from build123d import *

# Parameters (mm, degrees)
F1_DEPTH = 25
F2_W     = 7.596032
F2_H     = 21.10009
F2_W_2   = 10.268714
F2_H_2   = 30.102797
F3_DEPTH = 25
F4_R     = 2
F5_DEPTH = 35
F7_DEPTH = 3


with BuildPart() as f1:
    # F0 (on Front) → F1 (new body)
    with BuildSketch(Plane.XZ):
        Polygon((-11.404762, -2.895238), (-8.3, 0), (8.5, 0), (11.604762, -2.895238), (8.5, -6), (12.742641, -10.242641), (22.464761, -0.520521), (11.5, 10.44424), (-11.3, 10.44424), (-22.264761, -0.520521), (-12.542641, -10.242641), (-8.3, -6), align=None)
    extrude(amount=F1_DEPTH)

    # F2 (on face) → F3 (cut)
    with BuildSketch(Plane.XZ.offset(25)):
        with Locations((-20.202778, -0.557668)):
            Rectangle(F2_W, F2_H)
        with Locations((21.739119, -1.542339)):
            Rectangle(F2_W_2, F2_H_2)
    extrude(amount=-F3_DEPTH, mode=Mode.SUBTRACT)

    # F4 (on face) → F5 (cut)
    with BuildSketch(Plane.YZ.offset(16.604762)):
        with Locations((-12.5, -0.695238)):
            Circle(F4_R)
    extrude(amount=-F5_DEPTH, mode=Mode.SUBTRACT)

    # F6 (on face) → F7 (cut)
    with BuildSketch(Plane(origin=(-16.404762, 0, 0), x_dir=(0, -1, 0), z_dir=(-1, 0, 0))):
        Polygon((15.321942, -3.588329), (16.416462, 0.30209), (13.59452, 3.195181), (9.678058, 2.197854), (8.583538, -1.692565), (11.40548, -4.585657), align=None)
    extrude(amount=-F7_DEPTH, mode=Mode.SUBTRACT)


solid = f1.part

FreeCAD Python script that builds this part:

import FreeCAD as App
import Part
import Sketcher
Q = App.Units.Quantity


def add_polygon(sketch, points):
    """Adds a closed chain of lines whose ends are joined by coincident constraints."""
    first, n = sketch.GeometryCount, len(points)
    for a, b in zip(points, points[1:] + points[:1]):
        sketch.addGeometry(Part.LineSegment(App.Vector(*a, 0), App.Vector(*b, 0)), False)
    for i in range(n):
        sketch.addConstraint(Sketcher.Constraint("Coincident", first + i, 2, first + (i + 1) % n, 1))

doc = App.newDocument("Part")
body = doc.addObject("PartDesign::Body", "Body")

# Sketch on XZ plane
sketch1 = body.newObject("Sketcher::SketchObject", "Sketch")
sketch1.AttachmentSupport = (doc.getObject("XZ_Plane"), [""])
sketch1.MapMode = "FlatFace"
add_polygon(sketch1, [(-11.4, -2.9), (-8.3, 0), (8.5, 0), (11.6, -2.9), (8.5, -6), (12.7, -10.2), (22.5, -0.5), (11.5, 10.4), (-11.3, 10.4), (-22.3, -0.5), (-12.5, -10.2), (-8.3, -6)])  # lines 0-11
sketch1.addConstraint([
    Sketcher.Constraint("Horizontal", 1),
    Sketcher.Constraint("Horizontal", 7),
    Sketcher.Constraint("PointOnObject", 0, 2, -1),
    Sketcher.Constraint("Perpendicular", 3, 4),
    Sketcher.Constraint("Perpendicular", 4, 5),
    Sketcher.Constraint("Perpendicular", 5, 6),
    Sketcher.Constraint("Perpendicular", 6, 8),
    Sketcher.Constraint("Perpendicular", 8, 9),
    Sketcher.Constraint("Perpendicular", 9, 10),
    Sketcher.Constraint("Perpendicular", 10, 11),
    Sketcher.Constraint("Horizontal", 5, 2, 8, 2),
    Sketcher.Constraint("Horizontal", 4, 2, 9, 2),
    Sketcher.Constraint("Horizontal", 3, 2, 10, 2),
    Sketcher.Constraint("Horizontal", 2, 2, 11, 2),
    Sketcher.Constraint("Vertical", 1, 2, 3, 2),
    Sketcher.Constraint("Vertical", 0, 2, 10, 2),
    Sketcher.Constraint("Equal", 0, 2),
    Sketcher.Constraint("Angle", 0, Q("43.000006 deg")),
    Sketcher.Constraint("Distance", 4, Q("6 mm")),
    Sketcher.Constraint("DistanceX", 1, 1, 1, 2, Q("16.8 mm")),
    Sketcher.Constraint("DistanceX", 7, 2, 7, 1, Q("22.8 mm")),
    Sketcher.Constraint("DistanceY", 3, 2, -1, 1, Q("6 mm")),
    Sketcher.Constraint("DistanceX", 0, 2, -1, 1, Q("8.3 mm")),
    Sketcher.Constraint("DistanceX", 2, 2, 5, 2, Q("10.859999 mm")),
])
pad1 = body.newObject("PartDesign::Pad", "Pad")
pad1.Profile = sketch1
pad1.Length = 25

# Sketch on XZ plane
sketch2 = body.newObject("Sketcher::SketchObject", "Sketch001")
sketch2.AttachmentSupport = (doc.getObject("XZ_Plane"), [""])
sketch2.MapMode = "FlatFace"
sketch2.AttachmentOffset = App.Placement(App.Vector(0, 0, 25), App.Rotation())
add_polygon(sketch2, [(-24, 10), (-24, -11), (-16, -11), (-16, 10)])  # lines 0-3
add_polygon(sketch2, [(17, 14), (17, -17), (27, -17), (27, 14)])  # lines 4-7
sketch2.addConstraint([
    Sketcher.Constraint("Vertical", 0),
    Sketcher.Constraint("Horizontal", 1),
    Sketcher.Constraint("Vertical", 2),
    Sketcher.Constraint("Horizontal", 3),
    Sketcher.Constraint("Vertical", 4),
    Sketcher.Constraint("Horizontal", 5),
    Sketcher.Constraint("Vertical", 6),
    Sketcher.Constraint("Horizontal", 7),
    Sketcher.Constraint("DistanceX", 1, 1, 1, 2, Q("7.596032 mm")),
    Sketcher.Constraint("DistanceY", 0, 2, 0, 1, Q("21.10009 mm")),
    Sketcher.Constraint("DistanceX", 5, 1, 5, 2, Q("10.268714 mm")),
    Sketcher.Constraint("DistanceY", 4, 2, 4, 1, Q("30.102797 mm")),
    Sketcher.Constraint("DistanceY", -1, 1, 6, 2, Q("13.509059 mm")),
    Sketcher.Constraint("DistanceX", 1, 2, 5, 2, Q("43.278238 mm")),
    Sketcher.Constraint("DistanceX", 0, 2, -1, 1, Q("24.000794 mm")),
    Sketcher.Constraint("DistanceY", 0, 2, -1, 1, Q("11.107713 mm")),
])
pocket1 = body.newObject("PartDesign::Pocket", "Pocket")
pocket1.Profile = sketch2
pocket1.Length = 25

# Sketch on YZ plane
sketch3 = body.newObject("Sketcher::SketchObject", "Sketch002")
sketch3.AttachmentSupport = (doc.getObject("YZ_Plane"), [""])
sketch3.MapMode = "FlatFace"
sketch3.AttachmentOffset = App.Placement(App.Vector(0, 0, 16.604762), App.Rotation())
sketch3.addGeometry(Part.Circle(App.Vector(-12.5, -0.7, 0), App.Vector(0, 0, 1), 2), False)
sketch3.addConstraint([
    Sketcher.Constraint("Diameter", 0, Q("4 mm")),
    Sketcher.Constraint("DistanceX", 0, 3, -1, 1, Q("12.5 mm")),
    Sketcher.Constraint("DistanceY", 0, 3, -1, 1, Q("0.695238 mm")),
])
pocket2 = body.newObject("PartDesign::Pocket", "Pocket001")
pocket2.Profile = sketch3
pocket2.Length = 35

# Sketch on YZ plane
sketch4 = body.newObject("Sketcher::SketchObject", "Sketch003")
sketch4.AttachmentSupport = (doc.getObject("YZ_Plane"), [""])
sketch4.MapMode = "FlatFace"
sketch4.AttachmentOffset = App.Placement(App.Vector(0, 0, -16.404762), App.Rotation())
add_polygon(sketch4, [(-15.3, -3.6), (-16.4, 0.3), (-13.6, 3.2), (-9.7, 2.2), (-8.6, -1.7), (-11.4, -4.6)])  # lines 0-5
sketch4.addConstraint([
    Sketcher.Constraint("Parallel", 0, 3),
    Sketcher.Constraint("Parallel", 1, 4),
    Sketcher.Constraint("Parallel", 2, 5),
    Sketcher.Constraint("Equal", 0, 1),
    Sketcher.Constraint("Equal", 1, 2),
    Sketcher.Constraint("Equal", 2, 3),
    Sketcher.Constraint("Distance", 0, Q("4.041452 mm")),
    Sketcher.Constraint("DistanceX", 0, 2, -1, 1, Q("16.416462 mm")),
    Sketcher.Constraint("DistanceY", -1, 1, 0, 2, Q("0.30209 mm")),
    Sketcher.Constraint("DistanceX", 1, 2, -1, 1, Q("13.59452 mm")),
    Sketcher.Constraint("DistanceX", 3, 2, -1, 1, Q("8.583538 mm")),
    Sketcher.Constraint("DistanceY", 5, 2, -1, 1, Q("3.588329 mm")),
])
pocket3 = body.newObject("PartDesign::Pocket", "Pocket002")
pocket3.Profile = sketch4
pocket3.Length = 3
pocket3.Reversed = True

doc.recompute()
